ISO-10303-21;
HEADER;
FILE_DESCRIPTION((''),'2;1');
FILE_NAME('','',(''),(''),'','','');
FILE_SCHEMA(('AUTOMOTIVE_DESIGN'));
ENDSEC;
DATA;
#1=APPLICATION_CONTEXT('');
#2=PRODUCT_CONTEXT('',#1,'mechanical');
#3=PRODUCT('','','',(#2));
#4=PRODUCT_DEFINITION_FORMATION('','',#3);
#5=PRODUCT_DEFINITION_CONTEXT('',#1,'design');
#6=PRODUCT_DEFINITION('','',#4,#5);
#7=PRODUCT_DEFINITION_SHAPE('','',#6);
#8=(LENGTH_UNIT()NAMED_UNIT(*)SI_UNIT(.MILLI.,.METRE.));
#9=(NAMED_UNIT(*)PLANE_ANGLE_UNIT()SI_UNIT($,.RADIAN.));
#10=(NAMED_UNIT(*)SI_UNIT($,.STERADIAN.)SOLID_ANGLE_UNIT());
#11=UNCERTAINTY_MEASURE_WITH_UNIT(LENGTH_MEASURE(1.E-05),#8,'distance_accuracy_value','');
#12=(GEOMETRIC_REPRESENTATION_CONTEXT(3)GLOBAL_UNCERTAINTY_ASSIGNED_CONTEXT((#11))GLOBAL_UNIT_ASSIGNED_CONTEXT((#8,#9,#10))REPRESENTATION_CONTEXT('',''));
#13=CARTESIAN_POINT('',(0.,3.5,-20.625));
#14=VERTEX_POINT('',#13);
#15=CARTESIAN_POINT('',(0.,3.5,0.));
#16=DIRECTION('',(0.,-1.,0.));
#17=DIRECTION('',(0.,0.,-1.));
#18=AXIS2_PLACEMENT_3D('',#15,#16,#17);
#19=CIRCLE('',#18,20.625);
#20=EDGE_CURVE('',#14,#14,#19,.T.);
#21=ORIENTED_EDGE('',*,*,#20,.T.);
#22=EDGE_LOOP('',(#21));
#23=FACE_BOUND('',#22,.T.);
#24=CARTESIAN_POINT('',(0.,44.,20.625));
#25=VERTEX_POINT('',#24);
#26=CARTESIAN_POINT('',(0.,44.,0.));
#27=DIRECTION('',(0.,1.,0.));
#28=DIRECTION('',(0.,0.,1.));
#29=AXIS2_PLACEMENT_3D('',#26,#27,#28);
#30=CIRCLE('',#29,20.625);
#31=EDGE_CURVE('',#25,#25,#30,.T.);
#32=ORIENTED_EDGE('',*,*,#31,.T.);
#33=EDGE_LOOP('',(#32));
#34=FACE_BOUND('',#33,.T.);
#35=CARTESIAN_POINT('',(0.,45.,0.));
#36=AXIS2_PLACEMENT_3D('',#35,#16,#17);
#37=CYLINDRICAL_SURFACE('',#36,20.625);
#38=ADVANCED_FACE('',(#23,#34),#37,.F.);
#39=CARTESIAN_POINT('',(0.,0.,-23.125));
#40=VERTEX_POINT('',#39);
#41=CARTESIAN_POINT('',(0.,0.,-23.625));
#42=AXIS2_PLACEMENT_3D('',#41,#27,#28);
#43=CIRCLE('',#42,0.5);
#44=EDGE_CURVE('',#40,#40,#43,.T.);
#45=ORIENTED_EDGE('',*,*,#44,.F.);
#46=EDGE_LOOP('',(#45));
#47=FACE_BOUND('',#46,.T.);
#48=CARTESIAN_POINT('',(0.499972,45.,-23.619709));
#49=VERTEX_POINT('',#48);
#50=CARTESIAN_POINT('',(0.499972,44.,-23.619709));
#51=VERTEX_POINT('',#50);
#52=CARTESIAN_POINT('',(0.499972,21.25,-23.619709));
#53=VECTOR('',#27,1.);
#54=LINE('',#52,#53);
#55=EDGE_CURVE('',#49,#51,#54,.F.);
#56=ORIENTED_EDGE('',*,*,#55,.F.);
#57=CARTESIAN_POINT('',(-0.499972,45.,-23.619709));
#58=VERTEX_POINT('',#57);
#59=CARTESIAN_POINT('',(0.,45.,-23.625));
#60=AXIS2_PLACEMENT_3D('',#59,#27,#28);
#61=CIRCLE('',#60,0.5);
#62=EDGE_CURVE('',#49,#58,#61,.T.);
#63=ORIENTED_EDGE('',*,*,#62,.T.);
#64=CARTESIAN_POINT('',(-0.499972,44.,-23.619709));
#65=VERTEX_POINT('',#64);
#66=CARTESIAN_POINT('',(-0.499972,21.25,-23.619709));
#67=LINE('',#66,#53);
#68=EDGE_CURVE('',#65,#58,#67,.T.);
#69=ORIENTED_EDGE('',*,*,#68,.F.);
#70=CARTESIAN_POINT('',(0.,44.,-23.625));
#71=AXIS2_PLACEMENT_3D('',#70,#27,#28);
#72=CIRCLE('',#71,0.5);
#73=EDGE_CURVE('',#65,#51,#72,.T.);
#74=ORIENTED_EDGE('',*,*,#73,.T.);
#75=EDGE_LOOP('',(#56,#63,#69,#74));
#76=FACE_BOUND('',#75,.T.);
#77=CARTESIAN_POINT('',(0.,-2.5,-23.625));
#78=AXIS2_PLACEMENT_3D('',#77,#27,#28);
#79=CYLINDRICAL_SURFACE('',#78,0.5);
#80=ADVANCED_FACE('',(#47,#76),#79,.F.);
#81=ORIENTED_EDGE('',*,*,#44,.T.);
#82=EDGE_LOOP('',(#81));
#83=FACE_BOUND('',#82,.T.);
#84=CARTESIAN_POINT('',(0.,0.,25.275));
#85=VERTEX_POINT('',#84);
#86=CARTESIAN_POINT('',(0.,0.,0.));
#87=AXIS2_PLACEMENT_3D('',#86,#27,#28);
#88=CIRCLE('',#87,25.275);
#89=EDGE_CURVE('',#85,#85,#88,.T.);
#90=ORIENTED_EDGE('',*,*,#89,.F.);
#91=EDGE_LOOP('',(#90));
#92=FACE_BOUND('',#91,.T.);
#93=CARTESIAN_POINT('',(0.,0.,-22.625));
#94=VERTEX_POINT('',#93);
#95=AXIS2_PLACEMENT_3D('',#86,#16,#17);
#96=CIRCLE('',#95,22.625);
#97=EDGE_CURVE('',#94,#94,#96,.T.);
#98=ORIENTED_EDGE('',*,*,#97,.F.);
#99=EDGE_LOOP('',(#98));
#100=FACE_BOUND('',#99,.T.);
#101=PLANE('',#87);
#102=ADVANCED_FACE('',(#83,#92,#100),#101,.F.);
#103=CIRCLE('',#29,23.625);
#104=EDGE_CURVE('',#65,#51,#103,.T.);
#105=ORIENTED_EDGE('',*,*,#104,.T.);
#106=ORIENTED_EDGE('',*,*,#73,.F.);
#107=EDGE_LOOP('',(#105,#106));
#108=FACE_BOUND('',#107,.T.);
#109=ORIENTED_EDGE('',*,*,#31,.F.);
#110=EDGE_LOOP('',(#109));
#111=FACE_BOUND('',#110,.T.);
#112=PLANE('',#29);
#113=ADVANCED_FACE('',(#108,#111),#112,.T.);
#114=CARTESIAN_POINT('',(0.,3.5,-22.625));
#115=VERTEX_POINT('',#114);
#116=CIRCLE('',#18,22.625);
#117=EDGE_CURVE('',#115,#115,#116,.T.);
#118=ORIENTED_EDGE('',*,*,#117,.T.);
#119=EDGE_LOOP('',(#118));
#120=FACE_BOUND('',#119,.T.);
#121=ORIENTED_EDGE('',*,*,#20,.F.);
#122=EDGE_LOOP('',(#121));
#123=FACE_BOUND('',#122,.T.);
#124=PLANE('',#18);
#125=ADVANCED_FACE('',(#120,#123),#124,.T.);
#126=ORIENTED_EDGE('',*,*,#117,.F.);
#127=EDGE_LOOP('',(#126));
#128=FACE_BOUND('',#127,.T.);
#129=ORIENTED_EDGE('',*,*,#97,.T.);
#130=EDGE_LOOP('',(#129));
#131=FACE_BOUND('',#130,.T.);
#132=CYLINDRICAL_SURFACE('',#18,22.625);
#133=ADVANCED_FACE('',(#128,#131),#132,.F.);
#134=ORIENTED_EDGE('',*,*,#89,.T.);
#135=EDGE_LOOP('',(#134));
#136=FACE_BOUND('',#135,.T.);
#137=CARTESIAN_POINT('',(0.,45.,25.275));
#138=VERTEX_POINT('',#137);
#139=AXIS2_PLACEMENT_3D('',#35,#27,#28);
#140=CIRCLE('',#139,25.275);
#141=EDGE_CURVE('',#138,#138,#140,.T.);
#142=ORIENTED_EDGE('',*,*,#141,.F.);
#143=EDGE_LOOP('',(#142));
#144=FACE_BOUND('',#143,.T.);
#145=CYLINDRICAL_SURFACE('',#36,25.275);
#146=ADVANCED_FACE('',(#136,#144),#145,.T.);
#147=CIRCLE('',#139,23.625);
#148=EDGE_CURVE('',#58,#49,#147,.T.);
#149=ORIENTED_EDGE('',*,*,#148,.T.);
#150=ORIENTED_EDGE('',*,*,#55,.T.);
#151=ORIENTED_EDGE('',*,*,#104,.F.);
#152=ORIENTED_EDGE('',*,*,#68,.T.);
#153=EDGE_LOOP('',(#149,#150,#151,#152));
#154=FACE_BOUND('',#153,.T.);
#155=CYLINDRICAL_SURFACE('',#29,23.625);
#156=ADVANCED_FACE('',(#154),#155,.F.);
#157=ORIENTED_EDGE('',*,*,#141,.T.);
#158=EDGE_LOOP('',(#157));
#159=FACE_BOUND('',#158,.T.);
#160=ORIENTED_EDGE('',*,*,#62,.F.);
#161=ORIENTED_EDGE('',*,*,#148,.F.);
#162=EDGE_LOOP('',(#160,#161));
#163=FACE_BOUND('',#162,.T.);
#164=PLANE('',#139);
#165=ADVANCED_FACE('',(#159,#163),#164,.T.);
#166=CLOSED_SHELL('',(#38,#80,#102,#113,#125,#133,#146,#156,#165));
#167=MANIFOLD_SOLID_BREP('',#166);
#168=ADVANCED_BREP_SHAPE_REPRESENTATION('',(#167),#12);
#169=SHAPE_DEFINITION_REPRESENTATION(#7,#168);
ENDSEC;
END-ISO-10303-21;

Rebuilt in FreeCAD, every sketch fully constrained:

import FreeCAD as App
import Part
import Sketcher
from FreeCAD import Vector
Q = App.Units.Quantity

doc = App.newDocument("Part")
body = doc.addObject("PartDesign::Body", "Body")

# Sketch on XZ plane
sketch1 = body.newObject("Sketcher::SketchObject", "Sketch")
sketch1.AttachmentSupport = (doc.getObject("XZ_Plane"), [""])
sketch1.MapMode = "FlatFace"
sketch1.addGeometry([
    Part.Circle(Vector(0, 0, 0), Vector(0, 0, 1), 25),
    Part.Circle(Vector(0, 0, 0), Vector(0, 0, 1), 21),
], False)
sketch1.addConstraint([
    Sketcher.Constraint("Coincident", 0, 3, -1, 1),
    Sketcher.Constraint("Coincident", 1, 3, -1, 1),
    Sketcher.Constraint("Diameter", 0, Q("50.55 mm")),
    Sketcher.Constraint("Diameter", 1, Q("41.25 mm")),
])
pad1 = body.newObject("PartDesign::Pad", "Pad")
pad1.Profile = sketch1
pad1.Length = 45
pad1.Reversed = True

# Sketch on XZ plane
sketch2 = body.newObject("Sketcher::SketchObject", "Sketch001")
sketch2.AttachmentSupport = (doc.getObject("XZ_Plane"), [""])
sketch2.MapMode = "FlatFace"
sketch2.addGeometry(Part.Circle(Vector(0, 0, 0), Vector(0, 0, 1), 23), False)
sketch2.addConstraint([
    Sketcher.Constraint("Coincident", 0, 3, -1, 1),
    Sketcher.Constraint("Diameter", 0, Q("45.25 mm")),
])
pocket1 = body.newObject("PartDesign::Pocket", "Pocket")
pocket1.Profile = sketch2
pocket1.Length = 3.5

# Sketch on XZ plane
sketch3 = body.newObject("Sketcher::SketchObject", "Sketch002")
sketch3.AttachmentSupport = (doc.getObject("XZ_Plane"), [""])
sketch3.MapMode = "FlatFace"
sketch3.AttachmentOffset = App.Placement(Vector(0, 0, -45), App.Rotation())
sketch3.addGeometry(Part.Circle(Vector(0, 0, 0), Vector(0, 0, 1), 24), False)
sketch3.addConstraint([
    Sketcher.Constraint("Coincident", 0, 3, -1, 1),
    Sketcher.Constraint("Diameter", 0, Q("47.25 mm")),
])
pocket2 = body.newObject("PartDesign::Pocket", "Pocket001")
pocket2.Profile = sketch3
pocket2.Length = 1
pocket2.Reversed = True

# Sketch on XZ plane
sketch4 = body.newObject("Sketcher::SketchObject", "Sketch003")
sketch4.AttachmentSupport = (doc.getObject("XZ_Plane"), [""])
sketch4.MapMode = "FlatFace"
sketch4.AttachmentOffset = App.Placement(Vector(0, 0, -45), App.Rotation())
sketch4.addGeometry(Part.Circle(Vector(0, -23.6, 0), Vector(0, 0, 1), 0.5), False)
sketch4.addConstraint([
    Sketcher.Constraint("PointOnObject", 0, 3, -2),
    Sketcher.Constraint("Diameter", 0, Q("1 mm")),
    Sketcher.Constraint("DistanceY", 0, 3, -1, 1, Q("23.625 mm")),
])
pocket3 = body.newObject("PartDesign::Pocket", "Pocket002")
pocket3.Profile = sketch4
pocket3.Length = 47.5
pocket3.Reversed = True

doc.recompute()
